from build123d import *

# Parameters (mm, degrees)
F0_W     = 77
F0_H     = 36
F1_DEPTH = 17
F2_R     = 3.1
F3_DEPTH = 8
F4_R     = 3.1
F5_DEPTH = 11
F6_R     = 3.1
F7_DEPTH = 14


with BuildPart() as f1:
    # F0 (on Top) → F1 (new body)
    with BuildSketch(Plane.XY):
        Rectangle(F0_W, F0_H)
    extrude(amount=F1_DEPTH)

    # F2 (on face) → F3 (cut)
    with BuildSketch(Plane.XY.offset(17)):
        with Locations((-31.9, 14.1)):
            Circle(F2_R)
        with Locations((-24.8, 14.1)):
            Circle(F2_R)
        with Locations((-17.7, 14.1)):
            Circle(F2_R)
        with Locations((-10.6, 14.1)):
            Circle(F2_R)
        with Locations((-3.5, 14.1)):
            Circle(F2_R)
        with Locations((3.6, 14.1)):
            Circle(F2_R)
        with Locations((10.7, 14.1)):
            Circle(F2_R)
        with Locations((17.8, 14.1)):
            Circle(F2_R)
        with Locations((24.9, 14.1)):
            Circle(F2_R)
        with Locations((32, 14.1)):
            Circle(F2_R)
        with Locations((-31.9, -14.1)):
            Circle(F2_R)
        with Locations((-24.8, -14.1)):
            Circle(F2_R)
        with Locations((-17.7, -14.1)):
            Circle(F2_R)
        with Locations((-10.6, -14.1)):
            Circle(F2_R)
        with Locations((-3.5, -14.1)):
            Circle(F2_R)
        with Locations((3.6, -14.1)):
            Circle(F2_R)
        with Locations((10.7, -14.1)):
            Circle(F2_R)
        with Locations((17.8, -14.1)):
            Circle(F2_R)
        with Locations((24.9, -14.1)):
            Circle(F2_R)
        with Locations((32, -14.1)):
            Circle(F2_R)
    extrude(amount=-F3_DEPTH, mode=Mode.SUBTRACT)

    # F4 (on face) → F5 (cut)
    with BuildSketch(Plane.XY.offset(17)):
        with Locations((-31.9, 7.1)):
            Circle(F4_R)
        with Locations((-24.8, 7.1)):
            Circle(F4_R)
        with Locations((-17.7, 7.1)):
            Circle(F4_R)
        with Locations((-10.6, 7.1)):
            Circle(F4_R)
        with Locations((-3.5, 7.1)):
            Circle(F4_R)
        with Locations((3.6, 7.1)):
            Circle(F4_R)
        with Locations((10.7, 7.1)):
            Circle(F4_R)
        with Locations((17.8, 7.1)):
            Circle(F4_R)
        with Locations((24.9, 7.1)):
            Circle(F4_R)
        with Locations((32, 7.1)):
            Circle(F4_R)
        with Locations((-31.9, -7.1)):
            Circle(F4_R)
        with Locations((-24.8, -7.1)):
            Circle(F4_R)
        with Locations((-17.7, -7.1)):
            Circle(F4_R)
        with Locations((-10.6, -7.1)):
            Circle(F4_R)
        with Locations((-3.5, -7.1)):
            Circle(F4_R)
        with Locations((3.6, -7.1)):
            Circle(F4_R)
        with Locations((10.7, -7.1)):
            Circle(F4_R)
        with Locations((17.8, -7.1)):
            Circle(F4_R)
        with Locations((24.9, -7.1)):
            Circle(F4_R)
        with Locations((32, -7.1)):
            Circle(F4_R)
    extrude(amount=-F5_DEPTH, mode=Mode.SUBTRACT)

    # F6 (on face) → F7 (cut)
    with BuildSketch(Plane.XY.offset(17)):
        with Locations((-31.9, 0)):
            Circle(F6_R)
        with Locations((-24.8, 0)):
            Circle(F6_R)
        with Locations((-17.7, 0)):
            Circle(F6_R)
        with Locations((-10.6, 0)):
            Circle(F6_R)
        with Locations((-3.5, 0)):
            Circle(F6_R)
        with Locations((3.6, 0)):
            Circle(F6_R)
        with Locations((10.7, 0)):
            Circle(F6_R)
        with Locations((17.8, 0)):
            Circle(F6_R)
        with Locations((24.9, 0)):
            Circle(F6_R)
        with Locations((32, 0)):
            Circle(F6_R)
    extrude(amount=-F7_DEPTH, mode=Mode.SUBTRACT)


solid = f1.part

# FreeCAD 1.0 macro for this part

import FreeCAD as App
import Part
import Sketcher


def add_polygon(sketch, points):
    """Adds a closed chain of lines whose ends are joined by coincident constraints."""
    first, n = sketch.GeometryCount, len(points)
    for a, b in zip(points, points[1:] + points[:1]):
        sketch.addGeometry(Part.LineSegment(App.Vector(*a, 0), App.Vector(*b, 0)), False)
    for i in range(n):
        sketch.addConstraint(Sketcher.Constraint("Coincident", first + i, 2, first + (i + 1) % n, 1))

doc = App.newDocument("Part")
body = doc.addObject("PartDesign::Body", "Body")

sketch1 = doc.addObject("Sketcher::SketchObject", "Sketch")
body.addObject(sketch1)
sketch1.AttachmentSupport = (doc.XY_Plane, [""])
sketch1.MapMode = "FlatFace"
add_polygon(sketch1, [(-38.5, 18), (-38.5, -18), (38.5, -18), (38.5, 18)])
sketch1.addConstraint([
    Sketcher.Constraint("Vertical", 0),
    Sketcher.Constraint("Horizontal", 1),
    Sketcher.Constraint("Vertical", 2),
    Sketcher.Constraint("Horizontal", 3),
    Sketcher.Constraint("Symmetric", 0, 2, 2, 2, -1, 1),
    Sketcher.Constraint("DistanceX", 1, 1, 1, 2, 77.0),
    Sketcher.Constraint("DistanceY", 0, 2, 0, 1, 36.0),
])
pad1 = doc.addObject("PartDesign::Pad", "Pad")
body.addObject(pad1)
pad1.Profile = sketch1
pad1.Length = 17

sketch2 = doc.addObject("Sketcher::SketchObject", "Sketch001")
body.addObject(sketch2)
sketch2.AttachmentSupport = (doc.XY_Plane, [""])
sketch2.MapMode = "FlatFace"
sketch2.AttachmentOffset = App.Placement(App.Vector(0, 0, 17), App.Rotation())
sketch2.addGeometry([
    Part.Circle(App.Vector(-31.9, 14.1, 0), App.Vector(0, 0, 1), 3.1),
    Part.Circle(App.Vector(-24.8, 14.1, 0), App.Vector(0, 0, 1), 3.1),
    Part.Circle(App.Vector(-17.7, 14.1, 0), App.Vector(0, 0, 1), 3.1),
    Part.Circle(App.Vector(-10.6, 14.1, 0), App.Vector(0, 0, 1), 3.1),
    Part.Circle(App.Vector(-3.5, 14.1, 0), App.Vector(0, 0, 1), 3.1),
    Part.Circle(App.Vector(3.6, 14.1, 0), App.Vector(0, 0, 1), 3.1),
    Part.Circle(App.Vector(10.7, 14.1, 0), App.Vector(0, 0, 1), 3.1),
    Part.Circle(App.Vector(17.8, 14.1, 0), App.Vector(0, 0, 1), 3.1),
    Part.Circle(App.Vector(24.9, 14.1, 0), App.Vector(0, 0, 1), 3.1),
    Part.Circle(App.Vector(32, 14.1, 0), App.Vector(0, 0, 1), 3.1),
    Part.Circle(App.Vector(-31.9, -14.1, 0), App.Vector(0, 0, 1), 3.1),
    Part.Circle(App.Vector(-24.8, -14.1, 0), App.Vector(0, 0, 1), 3.1),
    Part.Circle(App.Vector(-17.7, -14.1, 0), App.Vector(0, 0, 1), 3.1),
    Part.Circle(App.Vector(-10.6, -14.1, 0), App.Vector(0, 0, 1), 3.1),
    Part.Circle(App.Vector(-3.5, -14.1, 0), App.Vector(0, 0, 1), 3.1),
    Part.Circle(App.Vector(3.6, -14.1, 0), App.Vector(0, 0, 1), 3.1),
    Part.Circle(App.Vector(10.7, -14.1, 0), App.Vector(0, 0, 1), 3.1),
    Part.Circle(App.Vector(17.8, -14.1, 0), App.Vector(0, 0, 1), 3.1),
    Part.Circle(App.Vector(24.9, -14.1, 0), App.Vector(0, 0, 1), 3.1),
    Part.Circle(App.Vector(32, -14.1, 0), App.Vector(0, 0, 1), 3.1),
], False)
sketch2.addConstraint([
    Sketcher.Constraint("Equal", 0, 1),
    Sketcher.Constraint("Equal", 1, 2),
    Sketcher.Constraint("Equal", 2, 3),
    Sketcher.Constraint("Equal", 3, 4),
    Sketcher.Constraint("Equal", 4, 5),
    Sketcher.Constraint("Equal", 5, 6),
    Sketcher.Constraint("Equal", 6, 7),
    Sketcher.Constraint("Equal", 7, 8),
    Sketcher.Constraint("Equal", 8, 9),
    Sketcher.Constraint("Equal", 9, 10),
    Sketcher.Constraint("Equal", 10, 11),
    Sketcher.Constraint("Equal", 11, 12),
    Sketcher.Constraint("Equal", 12, 13),
    Sketcher.Constraint("Equal", 13, 14),
    Sketcher.Constraint("Equal", 14, 15),
    Sketcher.Constraint("Equal", 15, 16),
    Sketcher.Constraint("Equal", 16, 17),
    Sketcher.Constraint("Equal", 17, 18),
    Sketcher.Constraint("Equal", 18, 19),
    Sketcher.Constraint("Symmetric", 0, 3, 10, 3, -1),
    Sketcher.Constraint("Symmetric", 1, 3, 11, 3, -1),
    Sketcher.Constraint("Symmetric", 2, 3, 12, 3, -1),
    Sketcher.Constraint("Symmetric", 3, 3, 13, 3, -1),
    Sketcher.Constraint("Symmetric", 4, 3, 14, 3, -1),
    Sketcher.Constraint("Symmetric", 5, 3, 15, 3, -1),
    Sketcher.Constraint("Symmetric", 6, 3, 16, 3, -1),
    Sketcher.Constraint("Symmetric", 7, 3, 17, 3, -1),
    Sketcher.Constraint("Symmetric", 8, 3, 18, 3, -1),
    Sketcher.Constraint("Symmetric", 9, 3, 19, 3, -1),
    Sketcher.Constraint("Horizontal", 0, 3, 1, 3),
    Sketcher.Constraint("Horizontal", 1, 3, 2, 3),
    Sketcher.Constraint("Horizontal", 2, 3, 3, 3),
    Sketcher.Constraint("Horizontal", 3, 3, 4, 3),
    Sketcher.Constraint("Horizontal", 4, 3, 5, 3),
    Sketcher.Constraint("Horizontal", 5, 3, 6, 3),
    Sketcher.Constraint("Horizontal", 6, 3, 7, 3),
    Sketcher.Constraint("Horizontal", 7, 3, 8, 3),
    Sketcher.Constraint("Horizontal", 8, 3, 9, 3),
    Sketcher.Constraint("Diameter", 0, 6.2),
    Sketcher.Constraint("DistanceX", -1, 1, 9, 3, 32.0),
    Sketcher.Constraint("DistanceX", 0, 3, -1, 1, 31.9),
    Sketcher.Constraint("DistanceY", -1, 1, 0, 3, 14.1),
    Sketcher.Constraint("DistanceX", 1, 3, -1, 1, 24.8),
    Sketcher.Constraint("DistanceX", 2, 3, -1, 1, 17.7),
    Sketcher.Constraint("DistanceX", 3, 3, -1, 1, 10.6),
    Sketcher.Constraint("DistanceX", 4, 3, -1, 1, 3.5),
    Sketcher.Constraint("DistanceX", -1, 1, 5, 3, 3.6),
    Sketcher.Constraint("DistanceX", -1, 1, 6, 3, 10.7),
    Sketcher.Constraint("DistanceX", -1, 1, 7, 3, 17.8),
    Sketcher.Constraint("DistanceX", -1, 1, 8, 3, 24.9),
])
pocket1 = doc.addObject("PartDesign::Pocket", "Pocket")
body.addObject(pocket1)
pocket1.Profile = sketch2
pocket1.Length = 8

sketch3 = doc.addObject("Sketcher::SketchObject", "Sketch002")
body.addObject(sketch3)
sketch3.AttachmentSupport = (doc.XY_Plane, [""])
sketch3.MapMode = "FlatFace"
sketch3.AttachmentOffset = App.Placement(App.Vector(0, 0, 17), App.Rotation())
sketch3.addGeometry([
    Part.Circle(App.Vector(-31.9, 7.1, 0), App.Vector(0, 0, 1), 3.1),
    Part.Circle(App.Vector(-24.8, 7.1, 0), App.Vector(0, 0, 1), 3.1),
    Part.Circle(App.Vector(-17.7, 7.1, 0), App.Vector(0, 0, 1), 3.1),
    Part.Circle(App.Vector(-10.6, 7.1, 0), App.Vector(0, 0, 1), 3.1),
    Part.Circle(App.Vector(-3.5, 7.1, 0), App.Vector(0, 0, 1), 3.1),
    Part.Circle(App.Vector(3.6, 7.1, 0), App.Vector(0, 0, 1), 3.1),
    Part.Circle(App.Vector(10.7, 7.1, 0), App.Vector(0, 0, 1), 3.1),
    Part.Circle(App.Vector(17.8, 7.1, 0), App.Vector(0, 0, 1), 3.1),
    Part.Circle(App.Vector(24.9, 7.1, 0), App.Vector(0, 0, 1), 3.1),
    Part.Circle(App.Vector(32, 7.1, 0), App.Vector(0, 0, 1), 3.1),
    Part.Circle(App.Vector(-31.9, -7.1, 0), App.Vector(0, 0, 1), 3.1),
    Part.Circle(App.Vector(-24.8, -7.1, 0), App.Vector(0, 0, 1), 3.1),
    Part.Circle(App.Vector(-17.7, -7.1, 0), App.Vector(0, 0, 1), 3.1),
    Part.Circle(App.Vector(-10.6, -7.1, 0), App.Vector(0, 0, 1), 3.1),
    Part.Circle(App.Vector(-3.5, -7.1, 0), App.Vector(0, 0, 1), 3.1),
    Part.Circle(App.Vector(3.6, -7.1, 0), App.Vector(0, 0, 1), 3.1),
    Part.Circle(App.Vector(10.7, -7.1, 0), App.Vector(0, 0, 1), 3.1),
    Part.Circle(App.Vector(17.8, -7.1, 0), App.Vector(0, 0, 1), 3.1),
    Part.Circle(App.Vector(24.9, -7.1, 0), App.Vector(0, 0, 1), 3.1),
    Part.Circle(App.Vector(32, -7.1, 0), App.Vector(0, 0, 1), 3.1),
], False)
sketch3.addConstraint([
    Sketcher.Constraint("Equal", 0, 1),
    Sketcher.Constraint("Equal", 1, 2),
    Sketcher.Constraint("Equal", 2, 3),
    Sketcher.Constraint("Equal", 3, 4),
    Sketcher.Constraint("Equal", 4, 5),
    Sketcher.Constraint("Equal", 5, 6),
    Sketcher.Constraint("Equal", 6, 7),
    Sketcher.Constraint("Equal", 7, 8),
    Sketcher.Constraint("Equal", 8, 9),
    Sketcher.Constraint("Equal", 9, 10),
    Sketcher.Constraint("Equal", 10, 11),
    Sketcher.Constraint("Equal", 11, 12),
    Sketcher.Constraint("Equal", 12, 13),
    Sketcher.Constraint("Equal", 13, 14),
    Sketcher.Constraint("Equal", 14, 15),
    Sketcher.Constraint("Equal", 15, 16),
    Sketcher.Constraint("Equal", 16, 17),
    Sketcher.Constraint("Equal", 17, 18),
    Sketcher.Constraint("Equal", 18, 19),
    Sketcher.Constraint("Symmetric", 0, 3, 10, 3, -1),
    Sketcher.Constraint("Symmetric", 1, 3, 11, 3, -1),
    Sketcher.Constraint("Symmetric", 2, 3, 12, 3, -1),
    Sketcher.Constraint("Symmetric", 3, 3, 13, 3, -1),
    Sketcher.Constraint("Symmetric", 4, 3, 14, 3, -1),
    Sketcher.Constraint("Symmetric", 5, 3, 15, 3, -1),
    Sketcher.Constraint("Symmetric", 6, 3, 16, 3, -1),
    Sketcher.Constraint("Symmetric", 7, 3, 17, 3, -1),
    Sketcher.Constraint("Symmetric", 8, 3, 18, 3, -1),
    Sketcher.Constraint("Symmetric", 9, 3, 19, 3, -1),
    Sketcher.Constraint("Horizontal", 0, 3, 1, 3),
    Sketcher.Constraint("Horizontal", 1, 3, 2, 3),
    Sketcher.Constraint("Horizontal", 2, 3, 3, 3),
    Sketcher.Constraint("Horizontal", 3, 3, 4, 3),
    Sketcher.Constraint("Horizontal", 4, 3, 5, 3),
    Sketcher.Constraint("Horizontal", 5, 3, 6, 3),
    Sketcher.Constraint("Horizontal", 6, 3, 7, 3),
    Sketcher.Constraint("Horizontal", 7, 3, 8, 3),
    Sketcher.Constraint("Horizontal", 8, 3, 9, 3),
    Sketcher.Constraint("Diameter", 0, 6.2),
    Sketcher.Constraint("DistanceX", -1, 1, 9, 3, 32.0),
    Sketcher.Constraint("DistanceX", 0, 3, -1, 1, 31.9),
    Sketcher.Constraint("DistanceY", -1, 1, 0, 3, 7.1),
    Sketcher.Constraint("DistanceX", 1, 3, -1, 1, 24.8),
    Sketcher.Constraint("DistanceX", 2, 3, -1, 1, 17.7),
    Sketcher.Constraint("DistanceX", 3, 3, -1, 1, 10.6),
    Sketcher.Constraint("DistanceX", 4, 3, -1, 1, 3.5),
    Sketcher.Constraint("DistanceX", -1, 1, 5, 3, 3.6),
    Sketcher.Constraint("DistanceX", -1, 1, 6, 3, 10.7),
    Sketcher.Constraint("DistanceX", -1, 1, 7, 3, 17.8),
    Sketcher.Constraint("DistanceX", -1, 1, 8, 3, 24.9),
])
pocket2 = doc.addObject("PartDesign::Pocket", "Pocket001")
body.addObject(pocket2)
pocket2.Profile = sketch3
pocket2.Length = 11

sketch4 = doc.addObject("Sketcher::SketchObject", "Sketch003")
body.addObject(sketch4)
sketch4.AttachmentSupport = (doc.XY_Plane, [""])
sketch4.MapMode = "FlatFace"
sketch4.AttachmentOffset = App.Placement(App.Vector(0, 0, 17), App.Rotation())
sketch4.addGeometry([
    Part.Circle(App.Vector(-31.9, 0, 0), App.Vector(0, 0, 1), 3.1),
    Part.Circle(App.Vector(-24.8, 0, 0), App.Vector(0, 0, 1), 3.1),
    Part.Circle(App.Vector(-17.7, 0, 0), App.Vector(0, 0, 1), 3.1),
    Part.Circle(App.Vector(-10.6, 0, 0), App.Vector(0, 0, 1), 3.1),
    Part.Circle(App.Vector(-3.5, 0, 0), App.Vector(0, 0, 1), 3.1),
    Part.Circle(App.Vector(3.6, 0, 0), App.Vector(0, 0, 1), 3.1),
    Part.Circle(App.Vector(10.7, 0, 0), App.Vector(0, 0, 1), 3.1),
    Part.Circle(App.Vector(17.8, 0, 0), App.Vector(0, 0, 1), 3.1),
    Part.Circle(App.Vector(24.9, 0, 0), App.Vector(0, 0, 1), 3.1),
    Part.Circle(App.Vector(32, 0, 0), App.Vector(0, 0, 1), 3.1),
], False)
sketch4.addConstraint([
    Sketcher.Constraint("Equal", 0, 1),
    Sketcher.Constraint("Equal", 1, 2),
    Sketcher.Constraint("Equal", 2, 3),
    Sketcher.Constraint("Equal", 3, 4),
    Sketcher.Constraint("Equal", 4, 5),
    Sketcher.Constraint("Equal", 5, 6),
    Sketcher.Constraint("Equal", 6, 7),
    Sketcher.Constraint("Equal", 7, 8),
    Sketcher.Constraint("Equal", 8, 9),
    Sketcher.Constraint("PointOnObject", 0, 3, -1),
    Sketcher.Constraint("PointOnObject", 1, 3, -1),
    Sketcher.Constraint("PointOnObject", 2, 3, -1),
    Sketcher.Constraint("PointOnObject", 3, 3, -1),
    Sketcher.Constraint("PointOnObject", 4, 3, -1),
    Sketcher.Constraint("PointOnObject", 5, 3, -1),
    Sketcher.Constraint("PointOnObject", 6, 3, -1),
    Sketcher.Constraint("PointOnObject", 7, 3, -1),
    Sketcher.Constraint("PointOnObject", 8, 3, -1),
    Sketcher.Constraint("PointOnObject", 9, 3, -1),
    Sketcher.Constraint("Diameter", 0, 6.2),
    Sketcher.Constraint("DistanceX", -1, 1, 9, 3, 32.0),
    Sketcher.Constraint("DistanceX", 0, 3, -1, 1, 31.9),
    Sketcher.Constraint("DistanceX", 1, 3, -1, 1, 24.8),
    Sketcher.Constraint("DistanceX", 2, 3, -1, 1, 17.7),
    Sketcher.Constraint("DistanceX", 3, 3, -1, 1, 10.6),
    Sketcher.Constraint("DistanceX", 4, 3, -1, 1, 3.5),
    Sketcher.Constraint("DistanceX", -1, 1, 5, 3, 3.6),
    Sketcher.Constraint("DistanceX", -1, 1, 6, 3, 10.7),
    Sketcher.Constraint("DistanceX", -1, 1, 7, 3, 17.8),
    Sketcher.Constraint("DistanceX", -1, 1, 8, 3, 24.9),
])
pocket3 = doc.addObject("PartDesign::Pocket", "Pocket002")
body.addObject(pocket3)
pocket3.Profile = sketch4
pocket3.Length = 14

doc.recompute()
